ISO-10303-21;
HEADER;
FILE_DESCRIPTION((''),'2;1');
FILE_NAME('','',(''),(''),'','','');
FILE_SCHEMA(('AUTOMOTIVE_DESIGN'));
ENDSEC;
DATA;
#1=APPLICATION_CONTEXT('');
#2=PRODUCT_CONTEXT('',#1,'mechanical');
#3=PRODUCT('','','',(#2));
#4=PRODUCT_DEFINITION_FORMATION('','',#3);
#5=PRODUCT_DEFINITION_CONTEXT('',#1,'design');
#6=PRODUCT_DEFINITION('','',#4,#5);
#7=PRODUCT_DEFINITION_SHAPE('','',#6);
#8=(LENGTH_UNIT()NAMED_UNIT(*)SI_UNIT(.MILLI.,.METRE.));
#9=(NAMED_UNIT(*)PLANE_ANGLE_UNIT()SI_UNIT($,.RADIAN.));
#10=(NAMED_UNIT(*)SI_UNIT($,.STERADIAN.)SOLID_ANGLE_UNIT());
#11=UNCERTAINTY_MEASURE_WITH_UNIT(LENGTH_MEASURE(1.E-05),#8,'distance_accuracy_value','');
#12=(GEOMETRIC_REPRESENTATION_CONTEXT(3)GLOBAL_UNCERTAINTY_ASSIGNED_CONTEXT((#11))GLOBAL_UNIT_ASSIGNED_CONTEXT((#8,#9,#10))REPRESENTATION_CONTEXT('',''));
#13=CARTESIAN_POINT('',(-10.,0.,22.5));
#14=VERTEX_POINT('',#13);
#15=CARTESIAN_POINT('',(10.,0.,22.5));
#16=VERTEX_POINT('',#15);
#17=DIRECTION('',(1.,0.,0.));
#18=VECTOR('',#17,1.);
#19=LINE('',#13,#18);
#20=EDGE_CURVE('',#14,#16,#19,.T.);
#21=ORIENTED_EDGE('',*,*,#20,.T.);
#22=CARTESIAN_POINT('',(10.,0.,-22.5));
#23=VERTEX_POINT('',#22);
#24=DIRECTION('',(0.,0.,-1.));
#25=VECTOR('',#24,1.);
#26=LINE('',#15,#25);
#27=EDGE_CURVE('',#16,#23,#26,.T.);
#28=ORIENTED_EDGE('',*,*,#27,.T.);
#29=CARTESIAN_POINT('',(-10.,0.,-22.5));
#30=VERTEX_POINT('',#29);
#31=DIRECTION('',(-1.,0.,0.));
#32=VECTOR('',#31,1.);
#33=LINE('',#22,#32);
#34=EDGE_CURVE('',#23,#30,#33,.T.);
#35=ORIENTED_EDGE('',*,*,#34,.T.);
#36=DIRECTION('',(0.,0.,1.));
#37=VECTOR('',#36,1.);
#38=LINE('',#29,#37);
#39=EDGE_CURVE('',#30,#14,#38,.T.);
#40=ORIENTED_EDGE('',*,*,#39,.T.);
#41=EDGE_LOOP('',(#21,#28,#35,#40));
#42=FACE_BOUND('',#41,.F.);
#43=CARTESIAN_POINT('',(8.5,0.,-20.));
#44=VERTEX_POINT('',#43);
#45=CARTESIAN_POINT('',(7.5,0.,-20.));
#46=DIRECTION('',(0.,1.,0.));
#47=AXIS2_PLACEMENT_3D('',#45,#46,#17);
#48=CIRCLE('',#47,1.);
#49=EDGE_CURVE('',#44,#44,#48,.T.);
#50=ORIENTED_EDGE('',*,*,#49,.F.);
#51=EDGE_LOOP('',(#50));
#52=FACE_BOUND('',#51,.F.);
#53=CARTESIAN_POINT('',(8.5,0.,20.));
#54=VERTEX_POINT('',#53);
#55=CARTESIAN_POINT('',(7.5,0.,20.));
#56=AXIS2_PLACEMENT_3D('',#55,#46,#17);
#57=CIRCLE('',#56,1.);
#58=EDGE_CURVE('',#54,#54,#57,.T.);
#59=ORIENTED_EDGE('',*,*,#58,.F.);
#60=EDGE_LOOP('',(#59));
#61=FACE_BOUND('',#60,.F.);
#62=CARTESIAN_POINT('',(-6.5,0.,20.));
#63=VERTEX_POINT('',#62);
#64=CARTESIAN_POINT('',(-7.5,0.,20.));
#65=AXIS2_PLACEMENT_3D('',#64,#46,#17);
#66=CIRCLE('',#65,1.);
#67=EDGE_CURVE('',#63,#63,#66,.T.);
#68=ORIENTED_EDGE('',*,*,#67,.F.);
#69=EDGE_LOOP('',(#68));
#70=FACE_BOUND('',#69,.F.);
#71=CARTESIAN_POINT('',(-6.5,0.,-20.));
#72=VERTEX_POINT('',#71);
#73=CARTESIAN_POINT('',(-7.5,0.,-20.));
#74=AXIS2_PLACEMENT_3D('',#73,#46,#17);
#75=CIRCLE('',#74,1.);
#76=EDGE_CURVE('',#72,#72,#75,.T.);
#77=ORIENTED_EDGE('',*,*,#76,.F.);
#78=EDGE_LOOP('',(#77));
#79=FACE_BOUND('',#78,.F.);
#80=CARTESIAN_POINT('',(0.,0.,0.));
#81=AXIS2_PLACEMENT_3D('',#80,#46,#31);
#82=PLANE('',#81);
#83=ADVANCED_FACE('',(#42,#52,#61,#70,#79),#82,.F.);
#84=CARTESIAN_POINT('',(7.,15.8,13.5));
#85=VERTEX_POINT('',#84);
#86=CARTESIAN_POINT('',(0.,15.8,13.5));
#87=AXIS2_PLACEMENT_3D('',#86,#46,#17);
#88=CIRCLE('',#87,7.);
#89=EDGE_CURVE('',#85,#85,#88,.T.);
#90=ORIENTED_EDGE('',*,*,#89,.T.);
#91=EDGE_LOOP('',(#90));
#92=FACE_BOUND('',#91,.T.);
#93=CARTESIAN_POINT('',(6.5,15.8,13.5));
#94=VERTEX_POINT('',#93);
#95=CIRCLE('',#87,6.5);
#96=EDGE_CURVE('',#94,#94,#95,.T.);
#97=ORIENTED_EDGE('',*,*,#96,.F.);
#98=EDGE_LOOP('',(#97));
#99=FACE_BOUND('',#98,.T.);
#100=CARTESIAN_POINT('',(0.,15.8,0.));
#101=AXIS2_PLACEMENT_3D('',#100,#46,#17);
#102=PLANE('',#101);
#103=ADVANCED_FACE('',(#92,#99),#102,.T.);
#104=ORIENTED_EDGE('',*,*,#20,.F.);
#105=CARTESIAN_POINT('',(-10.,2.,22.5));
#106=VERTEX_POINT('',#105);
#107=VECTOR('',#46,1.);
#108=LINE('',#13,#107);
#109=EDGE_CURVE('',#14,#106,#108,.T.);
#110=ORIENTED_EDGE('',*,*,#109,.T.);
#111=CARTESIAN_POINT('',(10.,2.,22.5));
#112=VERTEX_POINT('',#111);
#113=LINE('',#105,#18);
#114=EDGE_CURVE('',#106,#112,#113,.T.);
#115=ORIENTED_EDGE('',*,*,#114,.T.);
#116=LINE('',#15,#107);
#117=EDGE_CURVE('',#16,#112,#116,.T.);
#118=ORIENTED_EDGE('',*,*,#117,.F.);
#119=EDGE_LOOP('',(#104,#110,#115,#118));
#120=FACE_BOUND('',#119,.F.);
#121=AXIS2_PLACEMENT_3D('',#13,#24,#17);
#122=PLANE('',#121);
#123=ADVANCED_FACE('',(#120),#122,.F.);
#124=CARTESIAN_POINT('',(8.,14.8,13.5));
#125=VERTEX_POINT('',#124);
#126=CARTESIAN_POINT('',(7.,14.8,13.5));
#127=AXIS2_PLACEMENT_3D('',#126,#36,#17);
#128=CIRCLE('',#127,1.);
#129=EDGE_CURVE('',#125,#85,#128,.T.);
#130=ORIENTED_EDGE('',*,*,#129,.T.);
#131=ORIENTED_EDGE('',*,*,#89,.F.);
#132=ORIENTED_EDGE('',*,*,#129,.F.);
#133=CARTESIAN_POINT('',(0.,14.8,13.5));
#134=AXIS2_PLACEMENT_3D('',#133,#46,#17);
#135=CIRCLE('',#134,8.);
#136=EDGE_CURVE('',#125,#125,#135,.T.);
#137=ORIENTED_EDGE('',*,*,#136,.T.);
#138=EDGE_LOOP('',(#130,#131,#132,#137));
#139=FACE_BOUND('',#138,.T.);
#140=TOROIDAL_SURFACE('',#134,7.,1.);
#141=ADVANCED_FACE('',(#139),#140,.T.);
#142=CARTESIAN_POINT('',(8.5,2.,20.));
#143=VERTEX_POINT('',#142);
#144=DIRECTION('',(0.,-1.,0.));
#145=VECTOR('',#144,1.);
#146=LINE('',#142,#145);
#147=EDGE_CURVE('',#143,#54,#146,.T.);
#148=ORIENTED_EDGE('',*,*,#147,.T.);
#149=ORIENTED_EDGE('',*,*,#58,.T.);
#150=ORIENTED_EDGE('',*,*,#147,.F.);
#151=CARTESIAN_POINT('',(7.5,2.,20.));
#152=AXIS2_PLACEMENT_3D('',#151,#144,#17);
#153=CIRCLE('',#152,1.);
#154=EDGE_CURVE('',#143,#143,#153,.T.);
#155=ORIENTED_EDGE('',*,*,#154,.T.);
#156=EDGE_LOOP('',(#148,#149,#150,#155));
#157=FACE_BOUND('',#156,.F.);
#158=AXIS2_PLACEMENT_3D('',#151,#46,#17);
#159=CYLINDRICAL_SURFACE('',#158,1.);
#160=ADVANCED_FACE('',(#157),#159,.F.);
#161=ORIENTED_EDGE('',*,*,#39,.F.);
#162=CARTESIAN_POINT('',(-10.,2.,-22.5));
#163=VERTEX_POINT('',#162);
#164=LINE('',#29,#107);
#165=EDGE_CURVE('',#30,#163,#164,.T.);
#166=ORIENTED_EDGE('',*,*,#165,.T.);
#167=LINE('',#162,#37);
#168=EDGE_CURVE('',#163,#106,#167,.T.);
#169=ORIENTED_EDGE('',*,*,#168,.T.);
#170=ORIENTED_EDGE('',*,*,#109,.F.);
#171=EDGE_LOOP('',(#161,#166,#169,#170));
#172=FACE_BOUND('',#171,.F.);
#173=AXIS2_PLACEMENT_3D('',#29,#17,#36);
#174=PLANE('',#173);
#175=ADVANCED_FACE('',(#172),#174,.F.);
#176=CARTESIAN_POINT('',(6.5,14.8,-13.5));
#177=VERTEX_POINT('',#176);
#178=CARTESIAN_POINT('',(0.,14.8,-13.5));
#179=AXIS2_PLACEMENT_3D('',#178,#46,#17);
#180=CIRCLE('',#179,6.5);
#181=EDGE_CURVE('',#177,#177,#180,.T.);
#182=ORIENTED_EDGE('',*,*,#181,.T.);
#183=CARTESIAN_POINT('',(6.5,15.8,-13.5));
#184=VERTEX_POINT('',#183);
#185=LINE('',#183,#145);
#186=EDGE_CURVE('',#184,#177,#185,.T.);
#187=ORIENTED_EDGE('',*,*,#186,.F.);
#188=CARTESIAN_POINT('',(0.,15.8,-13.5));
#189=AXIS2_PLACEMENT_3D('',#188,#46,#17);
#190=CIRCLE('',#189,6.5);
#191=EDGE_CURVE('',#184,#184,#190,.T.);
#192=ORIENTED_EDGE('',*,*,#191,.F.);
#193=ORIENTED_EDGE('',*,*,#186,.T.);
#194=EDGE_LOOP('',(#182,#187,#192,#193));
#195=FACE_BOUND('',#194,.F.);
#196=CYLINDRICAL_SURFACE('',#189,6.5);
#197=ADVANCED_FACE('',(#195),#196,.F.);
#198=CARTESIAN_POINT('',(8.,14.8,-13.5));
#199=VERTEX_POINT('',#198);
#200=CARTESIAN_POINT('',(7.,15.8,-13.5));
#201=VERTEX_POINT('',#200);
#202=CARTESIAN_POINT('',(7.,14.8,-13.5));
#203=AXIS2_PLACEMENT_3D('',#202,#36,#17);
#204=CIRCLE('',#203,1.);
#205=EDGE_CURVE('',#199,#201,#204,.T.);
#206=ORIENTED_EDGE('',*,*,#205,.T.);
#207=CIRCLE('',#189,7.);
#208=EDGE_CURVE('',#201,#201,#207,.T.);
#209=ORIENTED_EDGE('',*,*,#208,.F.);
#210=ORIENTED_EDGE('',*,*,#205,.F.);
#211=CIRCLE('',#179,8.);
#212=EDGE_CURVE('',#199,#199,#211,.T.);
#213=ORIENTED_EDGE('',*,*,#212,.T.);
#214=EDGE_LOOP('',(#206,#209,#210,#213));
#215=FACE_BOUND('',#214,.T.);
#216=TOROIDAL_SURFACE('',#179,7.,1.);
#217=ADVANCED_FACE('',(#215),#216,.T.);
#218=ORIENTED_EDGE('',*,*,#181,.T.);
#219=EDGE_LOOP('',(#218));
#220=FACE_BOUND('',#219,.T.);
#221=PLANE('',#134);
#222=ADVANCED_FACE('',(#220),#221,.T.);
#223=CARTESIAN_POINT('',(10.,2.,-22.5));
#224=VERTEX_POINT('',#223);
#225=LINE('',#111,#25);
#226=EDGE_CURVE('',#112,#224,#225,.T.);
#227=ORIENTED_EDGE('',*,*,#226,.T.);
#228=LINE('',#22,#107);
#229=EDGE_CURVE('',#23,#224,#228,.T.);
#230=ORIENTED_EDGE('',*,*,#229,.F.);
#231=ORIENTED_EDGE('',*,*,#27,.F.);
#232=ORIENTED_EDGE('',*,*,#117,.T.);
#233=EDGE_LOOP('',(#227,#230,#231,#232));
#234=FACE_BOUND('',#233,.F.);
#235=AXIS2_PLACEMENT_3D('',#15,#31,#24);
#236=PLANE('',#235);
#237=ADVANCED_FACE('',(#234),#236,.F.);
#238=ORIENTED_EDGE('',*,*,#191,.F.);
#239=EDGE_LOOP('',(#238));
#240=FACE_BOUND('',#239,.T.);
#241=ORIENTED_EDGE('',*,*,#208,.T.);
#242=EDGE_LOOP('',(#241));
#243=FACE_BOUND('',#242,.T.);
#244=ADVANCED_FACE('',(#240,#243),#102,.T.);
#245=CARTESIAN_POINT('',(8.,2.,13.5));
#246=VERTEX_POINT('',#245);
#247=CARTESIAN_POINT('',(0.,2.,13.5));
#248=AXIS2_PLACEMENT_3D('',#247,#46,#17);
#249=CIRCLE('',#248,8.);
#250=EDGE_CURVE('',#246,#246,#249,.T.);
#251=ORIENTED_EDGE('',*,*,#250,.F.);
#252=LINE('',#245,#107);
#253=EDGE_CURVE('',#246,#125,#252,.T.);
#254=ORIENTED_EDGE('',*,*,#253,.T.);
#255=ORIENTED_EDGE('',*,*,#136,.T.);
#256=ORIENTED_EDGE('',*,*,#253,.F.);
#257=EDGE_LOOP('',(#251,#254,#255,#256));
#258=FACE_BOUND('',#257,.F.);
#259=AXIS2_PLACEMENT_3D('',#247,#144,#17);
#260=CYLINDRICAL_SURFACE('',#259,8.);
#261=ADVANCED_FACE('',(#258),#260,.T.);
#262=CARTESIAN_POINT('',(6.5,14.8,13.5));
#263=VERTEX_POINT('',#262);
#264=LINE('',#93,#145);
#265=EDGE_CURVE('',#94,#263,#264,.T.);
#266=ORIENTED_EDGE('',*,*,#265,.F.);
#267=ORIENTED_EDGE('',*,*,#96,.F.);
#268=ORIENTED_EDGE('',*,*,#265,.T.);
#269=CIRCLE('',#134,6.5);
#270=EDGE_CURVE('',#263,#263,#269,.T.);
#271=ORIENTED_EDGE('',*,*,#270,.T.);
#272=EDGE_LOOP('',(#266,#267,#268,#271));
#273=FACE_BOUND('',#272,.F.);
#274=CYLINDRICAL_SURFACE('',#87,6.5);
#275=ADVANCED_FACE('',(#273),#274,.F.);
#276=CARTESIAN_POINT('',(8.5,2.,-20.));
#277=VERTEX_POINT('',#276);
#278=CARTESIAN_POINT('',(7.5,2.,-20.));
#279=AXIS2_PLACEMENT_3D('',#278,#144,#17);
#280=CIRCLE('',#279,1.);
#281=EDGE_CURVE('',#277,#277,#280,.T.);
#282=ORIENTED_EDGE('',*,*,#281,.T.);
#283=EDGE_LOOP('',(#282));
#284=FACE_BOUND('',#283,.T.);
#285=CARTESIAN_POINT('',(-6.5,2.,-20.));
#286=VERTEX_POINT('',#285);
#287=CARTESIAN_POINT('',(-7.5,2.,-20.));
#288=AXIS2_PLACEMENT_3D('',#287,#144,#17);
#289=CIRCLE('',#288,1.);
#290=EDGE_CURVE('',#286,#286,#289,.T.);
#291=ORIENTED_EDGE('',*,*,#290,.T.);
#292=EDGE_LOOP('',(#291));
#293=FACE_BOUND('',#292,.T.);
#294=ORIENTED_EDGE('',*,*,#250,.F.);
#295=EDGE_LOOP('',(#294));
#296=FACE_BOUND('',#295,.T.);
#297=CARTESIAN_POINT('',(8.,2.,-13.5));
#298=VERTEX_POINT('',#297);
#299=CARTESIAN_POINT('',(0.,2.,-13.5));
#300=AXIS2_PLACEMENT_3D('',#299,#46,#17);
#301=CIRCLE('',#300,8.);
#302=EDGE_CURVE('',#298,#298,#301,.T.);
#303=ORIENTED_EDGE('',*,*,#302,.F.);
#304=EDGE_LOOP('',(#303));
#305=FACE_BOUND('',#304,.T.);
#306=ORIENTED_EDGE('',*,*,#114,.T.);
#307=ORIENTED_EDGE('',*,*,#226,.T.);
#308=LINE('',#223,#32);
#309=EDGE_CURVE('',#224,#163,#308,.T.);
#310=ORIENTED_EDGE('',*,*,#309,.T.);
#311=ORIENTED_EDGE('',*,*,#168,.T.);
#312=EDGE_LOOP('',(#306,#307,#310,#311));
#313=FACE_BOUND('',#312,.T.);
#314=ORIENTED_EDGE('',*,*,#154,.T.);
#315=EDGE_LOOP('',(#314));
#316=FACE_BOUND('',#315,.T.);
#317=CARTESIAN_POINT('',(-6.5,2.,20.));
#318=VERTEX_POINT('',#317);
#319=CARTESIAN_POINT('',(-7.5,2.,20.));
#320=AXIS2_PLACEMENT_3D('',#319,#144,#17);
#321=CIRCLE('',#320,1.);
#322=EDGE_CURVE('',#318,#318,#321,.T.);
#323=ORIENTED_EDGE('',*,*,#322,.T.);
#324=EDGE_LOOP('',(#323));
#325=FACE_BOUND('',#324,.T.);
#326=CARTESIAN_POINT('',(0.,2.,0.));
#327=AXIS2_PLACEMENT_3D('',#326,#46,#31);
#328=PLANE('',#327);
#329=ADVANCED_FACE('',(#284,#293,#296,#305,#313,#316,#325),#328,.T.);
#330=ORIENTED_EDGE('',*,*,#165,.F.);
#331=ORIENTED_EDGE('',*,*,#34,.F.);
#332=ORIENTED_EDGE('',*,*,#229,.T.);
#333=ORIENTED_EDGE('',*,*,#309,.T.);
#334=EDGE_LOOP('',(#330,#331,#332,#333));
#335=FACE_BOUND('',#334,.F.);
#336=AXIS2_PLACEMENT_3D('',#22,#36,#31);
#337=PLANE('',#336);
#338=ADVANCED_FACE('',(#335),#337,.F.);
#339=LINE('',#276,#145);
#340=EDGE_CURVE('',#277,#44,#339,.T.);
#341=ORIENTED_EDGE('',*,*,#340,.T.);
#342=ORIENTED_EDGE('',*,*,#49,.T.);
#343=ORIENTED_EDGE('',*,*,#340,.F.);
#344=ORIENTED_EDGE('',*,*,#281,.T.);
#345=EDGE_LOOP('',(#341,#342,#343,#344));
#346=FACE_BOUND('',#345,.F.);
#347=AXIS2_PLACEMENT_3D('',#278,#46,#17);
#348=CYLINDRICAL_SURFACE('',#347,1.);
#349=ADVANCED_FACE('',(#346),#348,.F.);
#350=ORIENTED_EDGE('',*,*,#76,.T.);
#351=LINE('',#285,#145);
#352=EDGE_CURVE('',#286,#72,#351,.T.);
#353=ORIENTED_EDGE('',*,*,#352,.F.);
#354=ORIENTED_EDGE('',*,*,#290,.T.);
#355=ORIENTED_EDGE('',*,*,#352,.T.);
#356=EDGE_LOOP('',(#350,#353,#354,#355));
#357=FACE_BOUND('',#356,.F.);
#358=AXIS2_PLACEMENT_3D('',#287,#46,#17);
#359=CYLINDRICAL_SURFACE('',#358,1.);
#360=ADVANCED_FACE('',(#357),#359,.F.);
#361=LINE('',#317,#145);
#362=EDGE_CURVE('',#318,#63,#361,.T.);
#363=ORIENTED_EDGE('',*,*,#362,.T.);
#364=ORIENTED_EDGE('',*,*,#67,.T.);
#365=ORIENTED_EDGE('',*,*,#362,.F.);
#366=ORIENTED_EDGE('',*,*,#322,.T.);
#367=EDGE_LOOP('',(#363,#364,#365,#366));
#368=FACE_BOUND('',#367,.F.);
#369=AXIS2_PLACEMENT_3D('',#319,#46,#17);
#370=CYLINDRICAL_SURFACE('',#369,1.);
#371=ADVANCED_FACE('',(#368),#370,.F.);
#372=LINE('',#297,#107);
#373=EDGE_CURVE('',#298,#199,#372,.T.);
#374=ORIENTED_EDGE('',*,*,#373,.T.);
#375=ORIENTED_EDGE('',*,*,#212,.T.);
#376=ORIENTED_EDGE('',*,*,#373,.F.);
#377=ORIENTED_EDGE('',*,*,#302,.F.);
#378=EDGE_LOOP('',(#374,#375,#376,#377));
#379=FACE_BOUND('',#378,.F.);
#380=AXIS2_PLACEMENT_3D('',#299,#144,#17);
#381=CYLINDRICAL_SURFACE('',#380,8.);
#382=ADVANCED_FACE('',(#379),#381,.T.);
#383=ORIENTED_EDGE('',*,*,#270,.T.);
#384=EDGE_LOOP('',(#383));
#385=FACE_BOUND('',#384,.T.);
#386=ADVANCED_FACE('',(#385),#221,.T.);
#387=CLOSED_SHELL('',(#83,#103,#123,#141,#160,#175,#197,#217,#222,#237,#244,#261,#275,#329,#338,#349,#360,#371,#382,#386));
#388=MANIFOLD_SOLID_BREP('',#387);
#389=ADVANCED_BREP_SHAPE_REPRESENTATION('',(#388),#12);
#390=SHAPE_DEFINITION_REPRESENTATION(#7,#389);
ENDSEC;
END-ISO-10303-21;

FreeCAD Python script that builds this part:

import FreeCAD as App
import Part
import Sketcher
from FreeCAD import Vector


def edges_at(feature, points):
    """Names of the edges that pass closest to the given points."""
    edges = feature.Shape.Edges
    near = lambda p: min(range(len(edges)), key=lambda i: edges[i].distToShape(Part.Vertex(*p))[0])
    return sorted({f"Edge{near(p) + 1}" for p in points})

doc = App.newDocument("Part")
params = doc.addObject("Spreadsheet::Sheet", "Params")
for row, (alias, value) in enumerate([
    ("sketch1_width", "20 mm"),
    ("sketch1_height", "45 mm"),
    ("pad1_length", "2 mm"),
    ("sketch2_diameter", "2 mm"),
    ("pocket1_length", "2 mm"),
    ("sketch3_diameter", "16 mm"),
    ("pad2_length", "13.8 mm"),
    ("fillet_radius", "1 mm"),
    ("sketch4_diameter", "13 mm"),
    ("pocket2_length", "1 mm"),
], start=1):
    params.set(f"A{row}", alias)
    params.set(f"B{row}", "=" + value)
    params.setAlias(f"B{row}", alias)

body = doc.addObject("PartDesign::Body", "Body")

# Sketch on XZ plane
sketch1 = body.newObject("Sketcher::SketchObject", "Sketch")
sketch1.AttachmentSupport = (doc.getObject("XZ_Plane"), [""])
sketch1.MapMode = "FlatFace"
sketch1.addGeometry(Part.LineSegment(Vector(-10, 22, 0), Vector(10, 22, 0)), False)
sketch1.addGeometry(Part.LineSegment(Vector(10, 22, 0), Vector(10, -22, 0)), False)
sketch1.addGeometry(Part.LineSegment(Vector(10, -22, 0), Vector(-10, -22, 0)), False)
sketch1.addGeometry(Part.LineSegment(Vector(-10, -22, 0), Vector(-10, 22, 0)), False)
sketch1.addConstraint(Sketcher.Constraint("Coincident", 0, 2, 1, 1))
sketch1.addConstraint(Sketcher.Constraint("Coincident", 1, 2, 2, 1))
sketch1.addConstraint(Sketcher.Constraint("Coincident", 2, 2, 3, 1))
sketch1.addConstraint(Sketcher.Constraint("Coincident", 3, 2, 0, 1))
sketch1.addConstraint(Sketcher.Constraint("Horizontal", 0))
sketch1.addConstraint(Sketcher.Constraint("Vertical", 1))
sketch1.addConstraint(Sketcher.Constraint("Horizontal", 2))
sketch1.addConstraint(Sketcher.Constraint("Vertical", 3))
sketch1.addConstraint(Sketcher.Constraint("Symmetric", 0, 2, 2, 2, -1, 1))
sketch1.addConstraint(Sketcher.Constraint("DistanceX", 0, 1, 0, 2, 20.0))
sketch1.addConstraint(Sketcher.Constraint("DistanceY", 1, 2, 1, 1, 45.0))
sketch1.setExpression("Constraints[9]", "Params.sketch1_width")
sketch1.setExpression("Constraints[10]", "Params.sketch1_height")
pad1 = body.newObject("PartDesign::Pad", "Pad")
pad1.Profile = sketch1
pad1.setExpression("Length", "Params.pad1_length")
pad1.Reversed = True

# Sketch on XZ plane
sketch2 = body.newObject("Sketcher::SketchObject", "Sketch001")
sketch2.AttachmentSupport = (doc.getObject("XZ_Plane"), [""])
sketch2.MapMode = "FlatFace"
sketch2.AttachmentOffset = App.Placement(Vector(0, 0, -2), App.Rotation())
sketch2.addGeometry(Part.Circle(Vector(7.5, 20, 0), Vector(0, 0, 1), 1), False)
sketch2.addGeometry(Part.Circle(Vector(7.5, -20, 0), Vector(0, 0, 1), 1), False)
sketch2.addGeometry(Part.Circle(Vector(-7.5, 20, 0), Vector(0, 0, 1), 1), False)
sketch2.addGeometry(Part.Circle(Vector(-7.5, -20, 0), Vector(0, 0, 1), 1), False)
sketch2.addConstraint(Sketcher.Constraint("Equal", 0, 1))
sketch2.addConstraint(Sketcher.Constraint("Equal", 1, 2))
sketch2.addConstraint(Sketcher.Constraint("Equal", 2, 3))
sketch2.addConstraint(Sketcher.Constraint("Symmetric", 1, 3, 2, 3, -1, 1))
sketch2.addConstraint(Sketcher.Constraint("Symmetric", 0, 3, 3, 3, -1, 1))
sketch2.addConstraint(Sketcher.Constraint("Symmetric", 0, 3, 2, 3, -2))
sketch2.addConstraint(Sketcher.Constraint("Diameter", 0, 2.0))
sketch2.addConstraint(Sketcher.Constraint("DistanceY", 1, 3, 0, 3, 40.0))
sketch2.addConstraint(Sketcher.Constraint("DistanceX", 2, 3, 0, 3, 15.0))
sketch2.setExpression("Constraints[6]", "Params.sketch2_diameter")
pocket1 = body.newObject("PartDesign::Pocket", "Pocket")
pocket1.Profile = sketch2
pocket1.setExpression("Length", "Params.pocket1_length")
pocket1.Reversed = True

# Sketch on XZ plane
sketch3 = body.newObject("Sketcher::SketchObject", "Sketch002")
sketch3.AttachmentSupport = (doc.getObject("XZ_Plane"), [""])
sketch3.MapMode = "FlatFace"
sketch3.AttachmentOffset = App.Placement(Vector(0, 0, -2), App.Rotation())
sketch3.addGeometry(Part.Circle(Vector(0, 14, 0), Vector(0, 0, 1), 8), False)
sketch3.addGeometry(Part.Circle(Vector(0, -14, 0), Vector(0, 0, 1), 8), False)
sketch3.addConstraint(Sketcher.Constraint("Equal", 0, 1))
sketch3.addConstraint(Sketcher.Constraint("Symmetric", 0, 3, 1, 3, -1, 1))
sketch3.addConstraint(Sketcher.Constraint("PointOnObject", 0, 3, -2))
sketch3.addConstraint(Sketcher.Constraint("Diameter", 0, 16.0))
sketch3.addConstraint(Sketcher.Constraint("DistanceY", 1, 3, 0, 3, 27.0))
sketch3.setExpression("Constraints[3]", "Params.sketch3_diameter")
pad2 = body.newObject("PartDesign::Pad", "Pad001")
pad2.Profile = sketch3
pad2.setExpression("Length", "Params.pad2_length")
pad2.Reversed = True
doc.recompute()

fillet = body.newObject("PartDesign::Fillet", "Fillet")
fillet.Base = (pad2, edges_at(pad2, [(-8, 15.8, -13.5), (-8, 15.8, 13.5)]))
fillet.setExpression("Radius", "Params.fillet_radius")

# Sketch on XZ plane
sketch4 = body.newObject("Sketcher::SketchObject", "Sketch003")
sketch4.AttachmentSupport = (doc.getObject("XZ_Plane"), [""])
sketch4.MapMode = "FlatFace"
sketch4.AttachmentOffset = App.Placement(Vector(0, 0, -15.8), App.Rotation())
sketch4.addGeometry(Part.Circle(Vector(0, 14, 0), Vector(0, 0, 1), 6), False)
sketch4.addGeometry(Part.Circle(Vector(0, -14, 0), Vector(0, 0, 1), 6), False)
sketch4.addConstraint(Sketcher.Constraint("Equal", 0, 1))
sketch4.addConstraint(Sketcher.Constraint("Symmetric", 0, 3, 1, 3, -1, 1))
sketch4.addConstraint(Sketcher.Constraint("PointOnObject", 0, 3, -2))
sketch4.addConstraint(Sketcher.Constraint("Diameter", 0, 13.0))
sketch4.addConstraint(Sketcher.Constraint("DistanceY", 1, 3, 0, 3, 27.0))
sketch4.setExpression("Constraints[3]", "Params.sketch4_diameter")
pocket2 = body.newObject("PartDesign::Pocket", "Pocket001")
pocket2.Profile = sketch4
pocket2.setExpression("Length", "Params.pocket2_length")
pocket2.Reversed = True

doc.recompute()
